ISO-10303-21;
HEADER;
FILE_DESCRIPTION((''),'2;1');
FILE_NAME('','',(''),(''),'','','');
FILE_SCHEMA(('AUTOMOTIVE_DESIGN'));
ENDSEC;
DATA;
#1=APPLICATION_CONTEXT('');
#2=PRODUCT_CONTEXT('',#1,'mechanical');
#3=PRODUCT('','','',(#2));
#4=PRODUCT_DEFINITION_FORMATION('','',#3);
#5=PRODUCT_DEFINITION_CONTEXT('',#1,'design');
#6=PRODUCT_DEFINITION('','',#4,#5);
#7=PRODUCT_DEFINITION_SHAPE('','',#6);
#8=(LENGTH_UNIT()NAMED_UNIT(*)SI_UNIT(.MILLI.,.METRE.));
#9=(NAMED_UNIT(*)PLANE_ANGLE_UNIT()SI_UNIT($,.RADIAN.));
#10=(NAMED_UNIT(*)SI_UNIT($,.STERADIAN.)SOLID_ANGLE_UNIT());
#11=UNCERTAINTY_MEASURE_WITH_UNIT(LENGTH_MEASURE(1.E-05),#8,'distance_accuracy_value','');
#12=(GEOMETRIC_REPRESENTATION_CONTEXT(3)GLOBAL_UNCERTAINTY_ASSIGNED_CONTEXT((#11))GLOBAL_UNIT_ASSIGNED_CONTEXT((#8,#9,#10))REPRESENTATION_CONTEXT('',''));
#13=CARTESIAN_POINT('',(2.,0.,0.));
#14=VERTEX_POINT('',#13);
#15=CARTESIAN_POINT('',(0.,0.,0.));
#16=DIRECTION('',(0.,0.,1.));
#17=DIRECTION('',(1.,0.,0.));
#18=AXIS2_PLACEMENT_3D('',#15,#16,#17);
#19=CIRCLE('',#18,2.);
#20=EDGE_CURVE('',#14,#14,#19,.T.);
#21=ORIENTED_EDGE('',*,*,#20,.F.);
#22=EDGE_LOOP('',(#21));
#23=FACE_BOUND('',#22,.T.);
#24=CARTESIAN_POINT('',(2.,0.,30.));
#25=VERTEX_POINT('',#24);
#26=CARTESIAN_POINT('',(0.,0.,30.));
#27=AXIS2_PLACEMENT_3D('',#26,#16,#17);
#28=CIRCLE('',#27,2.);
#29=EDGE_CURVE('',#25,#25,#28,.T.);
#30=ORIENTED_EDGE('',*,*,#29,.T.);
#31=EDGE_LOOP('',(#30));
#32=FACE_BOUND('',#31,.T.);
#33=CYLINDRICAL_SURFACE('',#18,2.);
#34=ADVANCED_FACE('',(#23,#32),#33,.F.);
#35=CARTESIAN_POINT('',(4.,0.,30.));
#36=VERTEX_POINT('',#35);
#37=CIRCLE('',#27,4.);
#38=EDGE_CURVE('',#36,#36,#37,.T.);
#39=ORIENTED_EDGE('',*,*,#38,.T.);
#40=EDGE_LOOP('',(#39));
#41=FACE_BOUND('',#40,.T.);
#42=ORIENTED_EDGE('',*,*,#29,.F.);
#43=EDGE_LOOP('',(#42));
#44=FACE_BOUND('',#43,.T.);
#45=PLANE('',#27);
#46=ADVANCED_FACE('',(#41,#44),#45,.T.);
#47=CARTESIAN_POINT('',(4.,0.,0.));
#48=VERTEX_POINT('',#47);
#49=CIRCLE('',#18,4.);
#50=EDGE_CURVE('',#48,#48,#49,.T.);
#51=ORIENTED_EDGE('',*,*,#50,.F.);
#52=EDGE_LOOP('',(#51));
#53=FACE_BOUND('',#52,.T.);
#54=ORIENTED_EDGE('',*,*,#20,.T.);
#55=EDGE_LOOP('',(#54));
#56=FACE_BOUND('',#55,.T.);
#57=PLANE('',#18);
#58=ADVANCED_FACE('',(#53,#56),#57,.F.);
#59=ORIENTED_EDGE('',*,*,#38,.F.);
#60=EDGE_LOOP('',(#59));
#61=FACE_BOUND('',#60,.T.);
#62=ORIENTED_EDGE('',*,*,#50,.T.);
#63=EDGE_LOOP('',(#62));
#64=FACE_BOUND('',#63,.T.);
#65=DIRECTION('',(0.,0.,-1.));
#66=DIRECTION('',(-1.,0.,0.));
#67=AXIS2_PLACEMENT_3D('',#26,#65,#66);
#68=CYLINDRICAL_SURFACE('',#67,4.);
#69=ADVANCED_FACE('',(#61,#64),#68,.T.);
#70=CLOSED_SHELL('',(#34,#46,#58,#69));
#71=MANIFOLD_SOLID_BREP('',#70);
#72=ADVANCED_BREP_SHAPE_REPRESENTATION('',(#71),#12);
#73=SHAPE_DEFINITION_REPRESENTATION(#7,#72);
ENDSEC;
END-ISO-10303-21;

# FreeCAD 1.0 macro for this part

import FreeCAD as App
import Part
import Sketcher
from FreeCAD import Vector
Q = App.Units.Quantity

doc = App.newDocument("Part")
params = doc.addObject("Spreadsheet::Sheet", "Params")
for row, (alias, value) in enumerate([
    ("sketch1_diameter", "8 mm"),
    ("pad1_length", "30 mm"),
    ("sketch2_diameter", "4 mm"),
], start=1):
    params.set(f"A{row}", alias)
    params.set(f"B{row}", "=" + value)
    params.setAlias(f"B{row}", alias)

body = doc.addObject("PartDesign::Body", "Body")

# Sketch on XY plane
sketch1 = body.newObject("Sketcher::SketchObject", "Sketch")
sketch1.AttachmentSupport = (doc.getObject("XY_Plane"), [""])
sketch1.MapMode = "FlatFace"
sketch1.addGeometry(Part.Circle(Vector(0, 0, 0), Vector(0, 0, 1), 4), False)
sketch1.addConstraint([
    Sketcher.Constraint("Coincident", 0, 3, -1, 1),
    Sketcher.Constraint("Diameter", 0, Q("8 mm")),
])
sketch1.setExpression("Constraints[1]", "Params.sketch1_diameter")
pad1 = body.newObject("PartDesign::Pad", "Pad")
pad1.Profile = sketch1
pad1.setExpression("Length", "Params.pad1_length")

# Sketch on XY plane
sketch2 = body.newObject("Sketcher::SketchObject", "Sketch001")
sketch2.AttachmentSupport = (doc.getObject("XY_Plane"), [""])
sketch2.MapMode = "FlatFace"
sketch2.AttachmentOffset = App.Placement(Vector(0, 0, 30), App.Rotation())
sketch2.addGeometry(Part.Circle(Vector(0, 0, 0), Vector(0, 0, 1), 2), False)
sketch2.addConstraint([
    Sketcher.Constraint("Coincident", 0, 3, -1, 1),
    Sketcher.Constraint("Diameter", 0, Q("4 mm")),
])
sketch2.setExpression("Constraints[1]", "Params.sketch2_diameter")
pocket1 = body.newObject("PartDesign::Pocket", "Pocket")
pocket1.Profile = sketch2
pocket1.Type = "ThroughAll"

doc.recompute()
